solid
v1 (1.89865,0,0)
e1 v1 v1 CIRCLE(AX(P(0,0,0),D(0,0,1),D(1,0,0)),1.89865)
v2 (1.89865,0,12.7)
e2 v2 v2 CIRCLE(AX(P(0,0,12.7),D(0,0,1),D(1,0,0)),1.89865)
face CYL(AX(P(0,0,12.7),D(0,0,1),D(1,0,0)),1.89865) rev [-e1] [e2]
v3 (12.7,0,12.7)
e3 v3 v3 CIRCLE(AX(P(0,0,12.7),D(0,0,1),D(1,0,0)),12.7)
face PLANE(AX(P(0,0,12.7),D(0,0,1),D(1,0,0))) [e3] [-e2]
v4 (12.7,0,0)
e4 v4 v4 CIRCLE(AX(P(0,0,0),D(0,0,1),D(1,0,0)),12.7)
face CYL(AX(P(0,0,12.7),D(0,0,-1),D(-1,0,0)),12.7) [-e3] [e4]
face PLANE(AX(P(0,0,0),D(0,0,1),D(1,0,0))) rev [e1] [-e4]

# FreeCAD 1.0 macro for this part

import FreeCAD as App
import Part
import Sketcher
from FreeCAD import Vector
Q = App.Units.Quantity

doc = App.newDocument("Part")
params = doc.addObject("Spreadsheet::Sheet", "Params")
for row, (alias, value) in enumerate([
    ("sketch1_diameter", "1 in"),
    ("pad1_length", "0.5 in"),
    ("hole_diameter", "0.1495 in"),
], start=1):
    params.set(f"A{row}", alias)
    params.set(f"B{row}", "=" + value)
    params.setAlias(f"B{row}", alias)

body = doc.addObject("PartDesign::Body", "Body")

sketch1 = body.newObject("Sketcher::SketchObject", "Sketch")
sketch1.AttachmentSupport = (doc.getObject("XY_Plane"), [""])
sketch1.MapMode = "FlatFace"
sketch1.addGeometry(Part.Circle(Vector(0, 0, 0), Vector(0, 0, 1), 13), False)
sketch1.addConstraint([
    Sketcher.Constraint("Coincident", 0, 3, -1, 1),
    Sketcher.Constraint("Diameter", 0, Q("1 in")),
])
sketch1.setExpression("Constraints[1]", "Params.sketch1_diameter")
pad1 = body.newObject("PartDesign::Pad", "Pad")
pad1.Profile = sketch1
pad1.setExpression("Length", "Params.pad1_length")

sketch2 = body.newObject("Sketcher::SketchObject", "Sketch001")
sketch2.AttachmentSupport = (doc.getObject("XY_Plane"), [""])
sketch2.MapMode = "FlatFace"
sketch2.AttachmentOffset = App.Placement(Vector(0, 0, 0.5 * 25.4), App.Rotation())
sketch2.addGeometry(Part.Circle(Vector(0, 0, 0), Vector(0, 0, 1), 1.9), False)
sketch2.addConstraint([
    Sketcher.Constraint("Coincident", 0, 3, -1, 1),
    Sketcher.Constraint("Diameter", 0, Q("0.1495 in")),
])
doc.recompute()
hole = body.newObject("PartDesign::Hole", "Hole")
hole.Profile = sketch2
hole.ThreadType = "None"
hole.setExpression("Diameter", "Params.hole_diameter")
hole.DepthType = "ThroughAll"

doc.recompute()
